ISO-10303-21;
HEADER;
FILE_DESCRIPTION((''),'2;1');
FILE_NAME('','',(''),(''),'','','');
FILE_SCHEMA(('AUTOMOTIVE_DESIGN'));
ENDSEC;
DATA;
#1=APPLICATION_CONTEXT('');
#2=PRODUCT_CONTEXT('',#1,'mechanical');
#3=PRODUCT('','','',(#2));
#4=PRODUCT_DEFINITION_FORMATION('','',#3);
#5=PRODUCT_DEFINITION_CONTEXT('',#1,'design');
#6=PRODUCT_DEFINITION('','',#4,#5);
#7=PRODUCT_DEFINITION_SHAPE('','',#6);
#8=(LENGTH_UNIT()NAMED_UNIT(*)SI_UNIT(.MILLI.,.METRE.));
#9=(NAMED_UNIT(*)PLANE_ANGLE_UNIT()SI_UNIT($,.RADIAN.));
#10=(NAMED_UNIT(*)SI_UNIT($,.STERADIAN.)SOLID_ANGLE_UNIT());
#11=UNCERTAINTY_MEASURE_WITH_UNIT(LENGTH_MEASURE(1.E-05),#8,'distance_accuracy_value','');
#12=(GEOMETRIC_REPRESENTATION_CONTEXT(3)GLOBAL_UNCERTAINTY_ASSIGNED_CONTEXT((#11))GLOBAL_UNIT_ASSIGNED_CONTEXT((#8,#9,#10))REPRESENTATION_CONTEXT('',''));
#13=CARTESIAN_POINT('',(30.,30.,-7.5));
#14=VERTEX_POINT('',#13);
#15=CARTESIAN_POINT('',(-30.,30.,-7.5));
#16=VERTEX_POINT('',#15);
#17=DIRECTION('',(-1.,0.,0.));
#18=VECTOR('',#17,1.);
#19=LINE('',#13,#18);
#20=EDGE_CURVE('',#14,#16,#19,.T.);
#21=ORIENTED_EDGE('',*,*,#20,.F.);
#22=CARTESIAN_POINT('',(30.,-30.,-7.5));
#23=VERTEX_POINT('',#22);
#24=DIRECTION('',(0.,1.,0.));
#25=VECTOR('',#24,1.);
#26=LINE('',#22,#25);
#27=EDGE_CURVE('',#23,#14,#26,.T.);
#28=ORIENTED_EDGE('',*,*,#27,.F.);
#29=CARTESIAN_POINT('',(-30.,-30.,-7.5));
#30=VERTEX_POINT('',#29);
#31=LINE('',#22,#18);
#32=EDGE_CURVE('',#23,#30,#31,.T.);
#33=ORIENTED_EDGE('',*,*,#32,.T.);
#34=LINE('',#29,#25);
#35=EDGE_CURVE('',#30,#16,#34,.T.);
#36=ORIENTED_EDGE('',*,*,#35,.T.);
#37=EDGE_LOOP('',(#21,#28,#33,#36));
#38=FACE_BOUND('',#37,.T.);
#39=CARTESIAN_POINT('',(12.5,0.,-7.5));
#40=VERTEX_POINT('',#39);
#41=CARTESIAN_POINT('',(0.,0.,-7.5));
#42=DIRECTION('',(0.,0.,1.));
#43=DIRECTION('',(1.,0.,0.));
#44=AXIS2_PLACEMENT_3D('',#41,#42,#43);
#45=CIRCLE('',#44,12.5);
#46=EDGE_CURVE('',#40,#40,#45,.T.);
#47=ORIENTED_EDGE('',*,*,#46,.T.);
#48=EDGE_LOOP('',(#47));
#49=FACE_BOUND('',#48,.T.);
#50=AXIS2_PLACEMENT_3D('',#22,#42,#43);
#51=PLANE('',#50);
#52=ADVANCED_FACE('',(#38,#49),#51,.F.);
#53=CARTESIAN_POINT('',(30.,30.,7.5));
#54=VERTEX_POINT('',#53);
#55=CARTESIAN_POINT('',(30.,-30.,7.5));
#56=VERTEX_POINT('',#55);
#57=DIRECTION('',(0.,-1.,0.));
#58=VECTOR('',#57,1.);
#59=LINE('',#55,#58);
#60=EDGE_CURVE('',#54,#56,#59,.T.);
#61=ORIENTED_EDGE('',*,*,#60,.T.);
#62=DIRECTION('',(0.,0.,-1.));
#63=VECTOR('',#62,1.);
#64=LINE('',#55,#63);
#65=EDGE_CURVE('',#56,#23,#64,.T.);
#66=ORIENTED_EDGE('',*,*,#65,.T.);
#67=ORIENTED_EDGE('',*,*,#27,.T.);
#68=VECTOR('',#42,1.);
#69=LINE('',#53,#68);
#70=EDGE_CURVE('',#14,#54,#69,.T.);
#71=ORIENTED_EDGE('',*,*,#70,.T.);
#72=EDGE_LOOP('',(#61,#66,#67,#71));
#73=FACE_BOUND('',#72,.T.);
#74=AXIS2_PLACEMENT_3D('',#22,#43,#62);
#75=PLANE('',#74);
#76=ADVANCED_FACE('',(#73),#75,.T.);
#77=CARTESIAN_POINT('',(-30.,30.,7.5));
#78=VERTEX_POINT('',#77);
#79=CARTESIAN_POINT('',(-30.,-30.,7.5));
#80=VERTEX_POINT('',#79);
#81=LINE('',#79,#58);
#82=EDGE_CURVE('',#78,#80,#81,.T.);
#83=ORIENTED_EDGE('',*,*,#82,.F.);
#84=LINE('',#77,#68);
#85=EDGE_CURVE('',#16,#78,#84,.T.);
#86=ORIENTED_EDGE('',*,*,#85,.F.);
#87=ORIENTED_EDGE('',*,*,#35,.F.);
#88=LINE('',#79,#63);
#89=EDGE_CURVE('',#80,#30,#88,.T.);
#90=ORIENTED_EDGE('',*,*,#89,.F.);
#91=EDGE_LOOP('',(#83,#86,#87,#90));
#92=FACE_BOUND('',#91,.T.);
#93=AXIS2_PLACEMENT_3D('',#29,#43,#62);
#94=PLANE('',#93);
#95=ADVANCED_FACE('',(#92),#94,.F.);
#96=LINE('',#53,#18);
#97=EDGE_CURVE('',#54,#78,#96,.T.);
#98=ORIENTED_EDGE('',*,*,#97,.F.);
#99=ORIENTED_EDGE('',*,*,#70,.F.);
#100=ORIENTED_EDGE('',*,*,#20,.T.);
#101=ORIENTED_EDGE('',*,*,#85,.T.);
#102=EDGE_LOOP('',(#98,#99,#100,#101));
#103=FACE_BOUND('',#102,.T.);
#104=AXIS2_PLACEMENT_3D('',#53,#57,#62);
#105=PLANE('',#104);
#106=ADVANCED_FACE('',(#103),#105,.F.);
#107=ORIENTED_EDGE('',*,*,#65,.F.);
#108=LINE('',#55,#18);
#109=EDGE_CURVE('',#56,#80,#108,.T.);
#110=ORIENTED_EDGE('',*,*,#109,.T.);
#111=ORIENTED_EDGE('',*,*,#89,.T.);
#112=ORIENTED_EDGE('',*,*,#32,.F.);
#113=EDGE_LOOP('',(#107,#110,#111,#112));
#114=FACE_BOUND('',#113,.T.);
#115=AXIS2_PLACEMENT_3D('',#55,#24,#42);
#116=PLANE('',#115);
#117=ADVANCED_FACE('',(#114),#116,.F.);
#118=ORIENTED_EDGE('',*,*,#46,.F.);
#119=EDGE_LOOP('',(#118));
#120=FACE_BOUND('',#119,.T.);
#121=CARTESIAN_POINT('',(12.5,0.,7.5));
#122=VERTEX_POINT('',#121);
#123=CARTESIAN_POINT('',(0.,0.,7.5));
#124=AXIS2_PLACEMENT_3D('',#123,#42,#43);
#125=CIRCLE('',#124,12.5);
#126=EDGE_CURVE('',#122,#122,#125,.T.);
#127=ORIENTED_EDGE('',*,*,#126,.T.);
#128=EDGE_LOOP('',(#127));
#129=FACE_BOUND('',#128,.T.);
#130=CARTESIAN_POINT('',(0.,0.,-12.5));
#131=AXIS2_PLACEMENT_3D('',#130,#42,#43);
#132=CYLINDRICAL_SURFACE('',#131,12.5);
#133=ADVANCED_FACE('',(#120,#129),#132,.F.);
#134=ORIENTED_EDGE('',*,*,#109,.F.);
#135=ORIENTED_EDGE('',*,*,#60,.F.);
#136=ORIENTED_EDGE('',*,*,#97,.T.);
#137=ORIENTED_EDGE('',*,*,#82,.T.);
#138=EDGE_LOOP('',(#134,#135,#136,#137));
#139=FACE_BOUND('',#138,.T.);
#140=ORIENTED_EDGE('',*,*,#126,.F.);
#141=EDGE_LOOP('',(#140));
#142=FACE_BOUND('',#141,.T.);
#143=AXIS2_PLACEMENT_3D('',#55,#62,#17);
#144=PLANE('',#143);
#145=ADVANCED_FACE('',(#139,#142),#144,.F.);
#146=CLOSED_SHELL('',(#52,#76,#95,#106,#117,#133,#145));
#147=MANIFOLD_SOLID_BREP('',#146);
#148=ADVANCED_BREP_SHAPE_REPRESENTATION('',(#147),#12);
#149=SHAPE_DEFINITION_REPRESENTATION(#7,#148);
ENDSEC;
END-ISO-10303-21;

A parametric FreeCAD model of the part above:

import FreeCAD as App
import Part
import Sketcher
from FreeCAD import Vector

doc = App.newDocument("Part")
body = doc.addObject("PartDesign::Body", "Body")

sketch1 = doc.addObject("Sketcher::SketchObject", "Sketch")
body.addObject(sketch1)
sketch1.AttachmentSupport = (doc.YZ_Plane, [""])
sketch1.MapMode = "FlatFace"
sketch1.AttachmentOffset = App.Placement(Vector(0, 0, -30), App.Rotation())
sketch1.addGeometry([
    Part.LineSegment(Vector(-30, 8, 0), Vector(-30, -8, 0)),
    Part.LineSegment(Vector(-30, -8, 0), Vector(30, -8, 0)),
    Part.LineSegment(Vector(30, -8, 0), Vector(30, 8, 0)),
    Part.LineSegment(Vector(30, 8, 0), Vector(-30, 8, 0)),
], False)
sketch1.addConstraint([
    Sketcher.Constraint("Coincident", 0, 2, 1, 1),
    Sketcher.Constraint("Coincident", 1, 2, 2, 1),
    Sketcher.Constraint("Coincident", 2, 2, 3, 1),
    Sketcher.Constraint("Coincident", 3, 2, 0, 1),
    Sketcher.Constraint("Vertical", 0),
    Sketcher.Constraint("Horizontal", 1),
    Sketcher.Constraint("Vertical", 2),
    Sketcher.Constraint("Horizontal", 3),
    Sketcher.Constraint("Symmetric", 0, 2, 2, 2, -1, 1),
    Sketcher.Constraint("DistanceX", 1, 1, 1, 2, 60.0),
    Sketcher.Constraint("DistanceY", 0, 2, 0, 1, 15.0),
])
pad1 = doc.addObject("PartDesign::Pad", "Pad")
body.addObject(pad1)
pad1.Profile = sketch1
pad1.Length = 60

sketch2 = doc.addObject("Sketcher::SketchObject", "Sketch001")
body.addObject(sketch2)
sketch2.AttachmentSupport = (doc.XY_Plane, [""])
sketch2.MapMode = "FlatFace"
sketch2.AttachmentOffset = App.Placement(Vector(0, 0, 7.5), App.Rotation())
sketch2.addGeometry(Part.Circle(Vector(0, 0, 0), Vector(0, 0, 1), 12), False)
sketch2.addConstraint([
    Sketcher.Constraint("Coincident", 0, 3, -1, 1),
    Sketcher.Constraint("Diameter", 0, 25.0),
])
pocket1 = doc.addObject("PartDesign::Pocket", "Pocket")
body.addObject(pocket1)
pocket1.Profile = sketch2
pocket1.Length = 20

doc.recompute()
